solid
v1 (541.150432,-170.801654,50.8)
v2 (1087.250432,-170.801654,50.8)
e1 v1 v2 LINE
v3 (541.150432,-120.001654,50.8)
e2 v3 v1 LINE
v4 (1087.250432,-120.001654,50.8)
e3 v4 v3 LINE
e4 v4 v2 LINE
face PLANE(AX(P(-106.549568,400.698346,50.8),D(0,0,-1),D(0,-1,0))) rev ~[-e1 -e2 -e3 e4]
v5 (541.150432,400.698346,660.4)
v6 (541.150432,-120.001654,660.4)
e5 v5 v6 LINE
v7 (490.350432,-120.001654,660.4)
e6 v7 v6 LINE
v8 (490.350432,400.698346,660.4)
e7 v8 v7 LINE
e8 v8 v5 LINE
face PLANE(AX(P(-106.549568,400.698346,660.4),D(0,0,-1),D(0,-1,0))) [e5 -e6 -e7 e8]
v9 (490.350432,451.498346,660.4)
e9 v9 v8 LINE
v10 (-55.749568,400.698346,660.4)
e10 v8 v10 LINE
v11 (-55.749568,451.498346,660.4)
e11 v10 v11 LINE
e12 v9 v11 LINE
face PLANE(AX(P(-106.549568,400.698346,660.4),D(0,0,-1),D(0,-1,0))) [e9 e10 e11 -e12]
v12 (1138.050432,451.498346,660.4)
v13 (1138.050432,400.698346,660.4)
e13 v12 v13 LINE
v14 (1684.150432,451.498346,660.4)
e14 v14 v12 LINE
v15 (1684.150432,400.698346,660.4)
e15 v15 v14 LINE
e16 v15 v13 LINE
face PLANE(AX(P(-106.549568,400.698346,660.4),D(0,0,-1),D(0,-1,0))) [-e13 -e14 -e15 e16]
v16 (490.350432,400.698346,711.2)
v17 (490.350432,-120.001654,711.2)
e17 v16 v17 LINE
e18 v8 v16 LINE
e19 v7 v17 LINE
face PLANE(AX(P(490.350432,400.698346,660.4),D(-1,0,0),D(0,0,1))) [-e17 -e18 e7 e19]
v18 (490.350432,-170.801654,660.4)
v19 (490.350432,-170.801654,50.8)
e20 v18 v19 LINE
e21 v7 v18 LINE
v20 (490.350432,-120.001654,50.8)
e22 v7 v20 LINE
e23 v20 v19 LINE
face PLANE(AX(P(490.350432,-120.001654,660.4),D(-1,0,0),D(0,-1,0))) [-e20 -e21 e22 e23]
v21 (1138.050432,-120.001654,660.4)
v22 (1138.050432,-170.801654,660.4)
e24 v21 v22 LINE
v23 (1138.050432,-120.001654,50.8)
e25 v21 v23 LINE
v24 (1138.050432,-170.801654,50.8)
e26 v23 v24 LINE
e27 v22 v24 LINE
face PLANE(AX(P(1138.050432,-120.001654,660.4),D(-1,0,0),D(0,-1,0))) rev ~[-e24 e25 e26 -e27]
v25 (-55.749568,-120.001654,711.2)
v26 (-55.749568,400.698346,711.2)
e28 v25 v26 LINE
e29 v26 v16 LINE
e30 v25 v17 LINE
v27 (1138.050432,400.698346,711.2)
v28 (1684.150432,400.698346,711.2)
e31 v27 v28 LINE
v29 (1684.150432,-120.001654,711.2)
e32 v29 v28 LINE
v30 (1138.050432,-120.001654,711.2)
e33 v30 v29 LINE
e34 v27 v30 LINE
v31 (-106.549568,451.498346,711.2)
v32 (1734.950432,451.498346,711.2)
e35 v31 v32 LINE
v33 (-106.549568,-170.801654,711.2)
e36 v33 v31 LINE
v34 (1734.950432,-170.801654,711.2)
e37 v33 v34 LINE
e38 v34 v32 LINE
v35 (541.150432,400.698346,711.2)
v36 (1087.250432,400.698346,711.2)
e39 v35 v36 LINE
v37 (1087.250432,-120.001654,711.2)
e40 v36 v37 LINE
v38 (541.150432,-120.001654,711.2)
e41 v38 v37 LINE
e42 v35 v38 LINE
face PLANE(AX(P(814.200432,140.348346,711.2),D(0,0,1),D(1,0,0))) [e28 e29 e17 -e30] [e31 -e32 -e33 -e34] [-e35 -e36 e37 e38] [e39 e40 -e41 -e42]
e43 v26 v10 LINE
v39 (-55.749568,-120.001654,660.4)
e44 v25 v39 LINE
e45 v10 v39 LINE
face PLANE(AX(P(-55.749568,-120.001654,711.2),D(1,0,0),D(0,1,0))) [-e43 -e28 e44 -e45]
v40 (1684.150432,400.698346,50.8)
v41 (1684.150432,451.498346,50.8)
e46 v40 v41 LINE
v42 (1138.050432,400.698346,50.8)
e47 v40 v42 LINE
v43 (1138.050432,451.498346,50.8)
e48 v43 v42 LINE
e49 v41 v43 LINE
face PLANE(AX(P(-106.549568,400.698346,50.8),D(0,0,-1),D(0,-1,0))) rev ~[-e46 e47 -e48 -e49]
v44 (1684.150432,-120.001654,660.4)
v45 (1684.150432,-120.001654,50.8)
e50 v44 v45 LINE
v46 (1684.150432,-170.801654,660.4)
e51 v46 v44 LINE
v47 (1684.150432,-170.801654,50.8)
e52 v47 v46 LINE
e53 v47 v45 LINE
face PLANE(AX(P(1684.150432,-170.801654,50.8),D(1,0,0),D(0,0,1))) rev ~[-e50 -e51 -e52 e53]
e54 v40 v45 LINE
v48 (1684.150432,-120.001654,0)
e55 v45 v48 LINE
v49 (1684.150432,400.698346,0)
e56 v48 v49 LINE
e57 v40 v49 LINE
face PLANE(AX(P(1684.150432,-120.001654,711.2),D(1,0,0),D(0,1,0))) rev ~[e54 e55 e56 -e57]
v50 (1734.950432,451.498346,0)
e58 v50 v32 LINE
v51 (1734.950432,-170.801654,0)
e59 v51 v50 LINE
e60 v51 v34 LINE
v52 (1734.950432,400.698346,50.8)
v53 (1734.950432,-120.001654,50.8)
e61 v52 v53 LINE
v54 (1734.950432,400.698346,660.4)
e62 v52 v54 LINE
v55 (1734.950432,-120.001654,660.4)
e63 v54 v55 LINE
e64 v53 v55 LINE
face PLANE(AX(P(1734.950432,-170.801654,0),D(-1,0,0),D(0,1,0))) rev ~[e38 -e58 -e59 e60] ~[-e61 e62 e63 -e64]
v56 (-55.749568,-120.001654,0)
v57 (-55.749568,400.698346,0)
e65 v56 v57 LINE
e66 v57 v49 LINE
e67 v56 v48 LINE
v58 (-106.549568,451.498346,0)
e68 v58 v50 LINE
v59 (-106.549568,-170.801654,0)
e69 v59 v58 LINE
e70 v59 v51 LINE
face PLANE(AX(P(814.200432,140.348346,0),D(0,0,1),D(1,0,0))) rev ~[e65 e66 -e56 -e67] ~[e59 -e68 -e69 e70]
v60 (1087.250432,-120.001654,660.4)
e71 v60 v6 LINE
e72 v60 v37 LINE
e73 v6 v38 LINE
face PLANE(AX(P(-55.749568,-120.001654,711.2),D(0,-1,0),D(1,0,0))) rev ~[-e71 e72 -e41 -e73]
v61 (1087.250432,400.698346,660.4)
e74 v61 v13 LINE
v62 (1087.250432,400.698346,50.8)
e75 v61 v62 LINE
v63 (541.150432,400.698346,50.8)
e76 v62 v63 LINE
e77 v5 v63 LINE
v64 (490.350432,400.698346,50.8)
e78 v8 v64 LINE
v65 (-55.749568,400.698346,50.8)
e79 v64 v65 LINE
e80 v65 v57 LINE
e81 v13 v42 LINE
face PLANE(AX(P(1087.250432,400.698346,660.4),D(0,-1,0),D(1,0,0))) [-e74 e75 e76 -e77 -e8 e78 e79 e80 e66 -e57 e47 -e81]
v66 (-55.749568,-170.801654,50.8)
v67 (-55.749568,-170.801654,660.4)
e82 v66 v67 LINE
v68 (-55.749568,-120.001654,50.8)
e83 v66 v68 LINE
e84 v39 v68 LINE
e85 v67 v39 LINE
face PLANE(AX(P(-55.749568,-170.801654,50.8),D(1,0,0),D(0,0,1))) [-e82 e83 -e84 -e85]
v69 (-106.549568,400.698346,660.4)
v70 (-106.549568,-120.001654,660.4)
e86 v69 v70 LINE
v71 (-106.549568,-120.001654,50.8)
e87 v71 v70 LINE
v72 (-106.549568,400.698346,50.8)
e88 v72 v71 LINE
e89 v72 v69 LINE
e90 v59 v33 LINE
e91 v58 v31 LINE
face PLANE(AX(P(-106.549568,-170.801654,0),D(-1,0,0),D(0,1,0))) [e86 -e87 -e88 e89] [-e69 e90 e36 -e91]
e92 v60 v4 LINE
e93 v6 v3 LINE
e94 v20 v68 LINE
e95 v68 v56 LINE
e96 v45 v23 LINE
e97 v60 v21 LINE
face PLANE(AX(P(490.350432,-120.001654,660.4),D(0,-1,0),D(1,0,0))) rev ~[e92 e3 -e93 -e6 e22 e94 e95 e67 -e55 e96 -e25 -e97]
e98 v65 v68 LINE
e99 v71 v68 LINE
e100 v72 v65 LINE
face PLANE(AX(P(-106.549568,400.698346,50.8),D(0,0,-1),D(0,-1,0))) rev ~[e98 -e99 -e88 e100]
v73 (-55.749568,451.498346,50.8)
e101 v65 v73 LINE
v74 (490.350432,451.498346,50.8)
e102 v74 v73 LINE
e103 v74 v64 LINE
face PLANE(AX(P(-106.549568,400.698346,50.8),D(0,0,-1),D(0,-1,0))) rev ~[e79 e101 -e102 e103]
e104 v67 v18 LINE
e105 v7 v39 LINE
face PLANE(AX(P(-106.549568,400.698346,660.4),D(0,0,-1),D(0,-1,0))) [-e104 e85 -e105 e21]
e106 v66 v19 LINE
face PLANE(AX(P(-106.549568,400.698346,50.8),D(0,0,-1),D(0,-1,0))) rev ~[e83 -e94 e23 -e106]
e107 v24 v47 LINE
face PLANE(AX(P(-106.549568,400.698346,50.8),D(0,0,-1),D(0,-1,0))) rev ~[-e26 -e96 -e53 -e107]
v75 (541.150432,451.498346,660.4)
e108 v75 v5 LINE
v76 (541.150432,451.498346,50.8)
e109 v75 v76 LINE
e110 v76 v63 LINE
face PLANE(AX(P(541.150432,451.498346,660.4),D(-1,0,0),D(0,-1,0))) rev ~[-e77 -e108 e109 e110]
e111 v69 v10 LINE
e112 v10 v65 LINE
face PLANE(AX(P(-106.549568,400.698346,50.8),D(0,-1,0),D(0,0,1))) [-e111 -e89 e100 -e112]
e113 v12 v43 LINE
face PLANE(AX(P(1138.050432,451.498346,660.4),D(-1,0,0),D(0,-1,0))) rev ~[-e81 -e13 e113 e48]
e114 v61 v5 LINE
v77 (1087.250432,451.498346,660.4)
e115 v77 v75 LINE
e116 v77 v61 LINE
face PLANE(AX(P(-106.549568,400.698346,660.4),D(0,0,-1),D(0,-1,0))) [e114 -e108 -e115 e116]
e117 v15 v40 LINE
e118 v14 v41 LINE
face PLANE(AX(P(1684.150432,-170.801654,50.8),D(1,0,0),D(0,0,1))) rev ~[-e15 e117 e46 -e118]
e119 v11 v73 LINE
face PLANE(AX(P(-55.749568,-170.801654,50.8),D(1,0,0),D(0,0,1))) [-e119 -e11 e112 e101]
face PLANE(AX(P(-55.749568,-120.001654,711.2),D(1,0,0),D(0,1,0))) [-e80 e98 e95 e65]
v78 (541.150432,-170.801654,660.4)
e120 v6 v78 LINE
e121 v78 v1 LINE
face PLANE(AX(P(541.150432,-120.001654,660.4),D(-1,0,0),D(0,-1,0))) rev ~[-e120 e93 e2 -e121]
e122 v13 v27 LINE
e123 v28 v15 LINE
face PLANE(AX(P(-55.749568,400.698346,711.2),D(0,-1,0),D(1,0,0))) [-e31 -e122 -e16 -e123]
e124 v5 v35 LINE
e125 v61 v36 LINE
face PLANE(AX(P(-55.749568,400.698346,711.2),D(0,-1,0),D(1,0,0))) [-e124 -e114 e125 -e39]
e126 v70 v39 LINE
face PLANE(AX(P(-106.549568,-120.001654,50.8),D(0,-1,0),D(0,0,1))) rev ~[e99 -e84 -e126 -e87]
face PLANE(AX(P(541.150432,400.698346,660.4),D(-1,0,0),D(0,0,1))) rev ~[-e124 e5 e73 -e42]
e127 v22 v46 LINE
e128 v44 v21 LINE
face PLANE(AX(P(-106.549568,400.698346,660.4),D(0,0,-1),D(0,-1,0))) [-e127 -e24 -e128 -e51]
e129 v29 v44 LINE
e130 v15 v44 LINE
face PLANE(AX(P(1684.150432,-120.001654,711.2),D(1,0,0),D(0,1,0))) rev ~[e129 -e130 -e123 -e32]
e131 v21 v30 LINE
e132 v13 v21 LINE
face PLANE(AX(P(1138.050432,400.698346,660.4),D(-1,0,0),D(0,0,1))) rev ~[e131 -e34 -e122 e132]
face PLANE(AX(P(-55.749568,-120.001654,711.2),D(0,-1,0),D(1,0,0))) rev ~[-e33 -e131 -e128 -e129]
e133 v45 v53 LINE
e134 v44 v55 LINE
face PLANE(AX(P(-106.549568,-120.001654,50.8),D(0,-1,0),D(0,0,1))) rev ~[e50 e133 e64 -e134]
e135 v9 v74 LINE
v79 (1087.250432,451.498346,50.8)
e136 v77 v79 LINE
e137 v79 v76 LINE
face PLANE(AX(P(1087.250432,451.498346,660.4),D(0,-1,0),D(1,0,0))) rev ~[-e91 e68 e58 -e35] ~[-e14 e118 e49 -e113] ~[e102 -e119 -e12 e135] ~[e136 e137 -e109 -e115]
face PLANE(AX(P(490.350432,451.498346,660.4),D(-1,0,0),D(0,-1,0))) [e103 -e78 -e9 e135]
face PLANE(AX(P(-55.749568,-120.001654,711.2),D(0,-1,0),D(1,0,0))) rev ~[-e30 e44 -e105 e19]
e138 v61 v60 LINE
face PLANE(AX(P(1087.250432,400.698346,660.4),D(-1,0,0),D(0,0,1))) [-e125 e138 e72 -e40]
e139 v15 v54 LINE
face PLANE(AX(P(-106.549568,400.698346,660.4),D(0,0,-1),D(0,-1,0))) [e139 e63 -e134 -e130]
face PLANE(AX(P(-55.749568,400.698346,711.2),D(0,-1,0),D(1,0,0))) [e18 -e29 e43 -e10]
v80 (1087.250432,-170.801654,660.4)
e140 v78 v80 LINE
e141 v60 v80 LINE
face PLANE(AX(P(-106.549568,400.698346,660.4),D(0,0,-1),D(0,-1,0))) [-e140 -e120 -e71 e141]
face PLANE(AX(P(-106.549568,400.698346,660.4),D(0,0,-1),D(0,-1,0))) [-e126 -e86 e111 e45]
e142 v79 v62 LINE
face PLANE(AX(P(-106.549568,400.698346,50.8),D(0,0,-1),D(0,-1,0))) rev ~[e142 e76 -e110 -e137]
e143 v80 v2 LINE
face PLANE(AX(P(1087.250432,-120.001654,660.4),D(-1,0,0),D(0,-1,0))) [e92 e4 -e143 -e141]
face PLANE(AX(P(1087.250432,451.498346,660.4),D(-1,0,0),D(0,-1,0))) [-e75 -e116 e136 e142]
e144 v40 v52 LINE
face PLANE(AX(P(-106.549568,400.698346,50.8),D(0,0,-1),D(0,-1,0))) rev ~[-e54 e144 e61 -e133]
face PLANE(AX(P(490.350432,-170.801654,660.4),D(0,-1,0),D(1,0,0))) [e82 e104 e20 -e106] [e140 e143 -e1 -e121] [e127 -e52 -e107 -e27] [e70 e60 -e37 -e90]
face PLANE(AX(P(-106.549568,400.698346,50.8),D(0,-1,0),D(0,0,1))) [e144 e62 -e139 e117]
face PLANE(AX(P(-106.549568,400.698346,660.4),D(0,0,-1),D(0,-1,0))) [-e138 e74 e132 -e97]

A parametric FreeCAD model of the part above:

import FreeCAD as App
import Part
import Sketcher
Q = App.Units.Quantity

doc = App.newDocument("Part")
body = doc.addObject("PartDesign::Body", "Body")

# Sketch on XY plane
sketch1 = body.newObject("Sketcher::SketchObject", "Sketch")
sketch1.AttachmentSupport = (doc.getObject("XY_Plane"), [""])
sketch1.MapMode = "FlatFace"
sketch1.addGeometry([
    Part.LineSegment(App.Vector(-107, 451, 0), App.Vector(-107, -171, 0)),
    Part.LineSegment(App.Vector(-107, -171, 0), App.Vector(1735, -171, 0)),
    Part.LineSegment(App.Vector(1735, -171, 0), App.Vector(1735, 451, 0)),
    Part.LineSegment(App.Vector(1735, 451, 0), App.Vector(-107, 451, 0)),
], False)
sketch1.addConstraint([
    Sketcher.Constraint("Coincident", 0, 2, 1, 1),
    Sketcher.Constraint("Coincident", 1, 2, 2, 1),
    Sketcher.Constraint("Coincident", 2, 2, 3, 1),
    Sketcher.Constraint("Coincident", 3, 2, 0, 1),
    Sketcher.Constraint("Vertical", 0),
    Sketcher.Constraint("Horizontal", 1),
    Sketcher.Constraint("Vertical", 2),
    Sketcher.Constraint("Horizontal", 3),
    Sketcher.Constraint("DistanceX", 1, 1, 1, 2, Q("72.5 in")),
    Sketcher.Constraint("DistanceY", 0, 2, 0, 1, Q("24.5 in")),
    Sketcher.Constraint("DistanceX", -1, 1, 1, 2, Q("1734.950432 mm")),
    Sketcher.Constraint("DistanceY", 0, 2, -1, 1, Q("170.801654 mm")),
])
pad1 = body.newObject("PartDesign::Pad", "Pad")
pad1.Profile = sketch1
pad1.Length = Q("28 in")

# Sketch on XZ plane
sketch2 = body.newObject("Sketcher::SketchObject", "Sketch001")
sketch2.AttachmentSupport = (doc.getObject("XZ_Plane"), [""])
sketch2.MapMode = "FlatFace"
sketch2.AttachmentOffset = App.Placement(App.Vector(0, 0, 170.801654), App.Rotation())
sketch2.addGeometry([
    Part.LineSegment(App.Vector(-56, 660, 0), App.Vector(-56, 51, 0)),
    Part.LineSegment(App.Vector(-56, 51, 0), App.Vector(1684, 51, 0)),
    Part.LineSegment(App.Vector(1684, 51, 0), App.Vector(1684, 660, 0)),
    Part.LineSegment(App.Vector(1684, 660, 0), App.Vector(-56, 660, 0)),
], False)
sketch2.addConstraint([
    Sketcher.Constraint("Coincident", 0, 2, 1, 1),
    Sketcher.Constraint("Coincident", 1, 2, 2, 1),
    Sketcher.Constraint("Coincident", 2, 2, 3, 1),
    Sketcher.Constraint("Coincident", 3, 2, 0, 1),
    Sketcher.Constraint("Vertical", 0),
    Sketcher.Constraint("Horizontal", 1),
    Sketcher.Constraint("Vertical", 2),
    Sketcher.Constraint("Horizontal", 3),
    Sketcher.Constraint("DistanceY", 0, 2, 0, 1, Q("24 in")),
    Sketcher.Constraint("DistanceX", 1, 1, 1, 2, Q("68.5 in")),
    Sketcher.Constraint("DistanceY", -1, 1, 0, 2, Q("2 in")),
    Sketcher.Constraint("DistanceX", -1, 1, 1, 2, Q("1684.150432 mm")),
])
pocket1 = body.newObject("PartDesign::Pocket", "Pocket")
pocket1.Profile = sketch2
pocket1.Length = Q("30 in")

# Sketch on YZ plane
sketch3 = body.newObject("Sketcher::SketchObject", "Sketch002")
sketch3.AttachmentSupport = (doc.getObject("YZ_Plane"), [""])
sketch3.MapMode = "FlatFace"
sketch3.AttachmentOffset = App.Placement(App.Vector(0, 0, -106.549568), App.Rotation())
sketch3.addGeometry([
    Part.LineSegment(App.Vector(401, 660, 0), App.Vector(401, 51, 0)),
    Part.LineSegment(App.Vector(401, 51, 0), App.Vector(-120, 51, 0)),
    Part.LineSegment(App.Vector(-120, 51, 0), App.Vector(-120, 660, 0)),
    Part.LineSegment(App.Vector(-120, 660, 0), App.Vector(401, 660, 0)),
], False)
sketch3.addConstraint([
    Sketcher.Constraint("Coincident", 0, 2, 1, 1),
    Sketcher.Constraint("Coincident", 1, 2, 2, 1),
    Sketcher.Constraint("Coincident", 2, 2, 3, 1),
    Sketcher.Constraint("Coincident", 3, 2, 0, 1),
    Sketcher.Constraint("Vertical", 0),
    Sketcher.Constraint("Horizontal", 1),
    Sketcher.Constraint("Vertical", 2),
    Sketcher.Constraint("Horizontal", 3),
    Sketcher.Constraint("DistanceY", 0, 2, 0, 1, Q("24 in")),
    Sketcher.Constraint("DistanceX", 1, 2, 1, 1, Q("20.5 in")),
    Sketcher.Constraint("DistanceY", -1, 1, 0, 2, Q("2 in")),
    Sketcher.Constraint("DistanceX", -1, 1, 0, 2, Q("400.698346 mm")),
])
pocket2 = body.newObject("PartDesign::Pocket", "Pocket001")
pocket2.Profile = sketch3
pocket2.Length = Q("100 in")
pocket2.Reversed = True

# Sketch on XY plane
sketch4 = body.newObject("Sketcher::SketchObject", "Sketch003")
sketch4.AttachmentSupport = (doc.getObject("XY_Plane"), [""])
sketch4.MapMode = "FlatFace"
sketch4.AttachmentOffset = App.Placement(App.Vector(0, 0, 28 * 25.4), App.Rotation())
sketch4.addGeometry([
    Part.LineSegment(App.Vector(-56, 401, 0), App.Vector(-56, -120, 0)),
    Part.LineSegment(App.Vector(-56, -120, 0), App.Vector(1684, -120, 0)),
    Part.LineSegment(App.Vector(1684, -120, 0), App.Vector(1684, 401, 0)),
    Part.LineSegment(App.Vector(1684, 401, 0), App.Vector(-56, 401, 0)),
], False)
sketch4.addConstraint([
    Sketcher.Constraint("Coincident", 0, 2, 1, 1),
    Sketcher.Constraint("Coincident", 1, 2, 2, 1),
    Sketcher.Constraint("Coincident", 2, 2, 3, 1),
    Sketcher.Constraint("Coincident", 3, 2, 0, 1),
    Sketcher.Constraint("Vertical", 0),
    Sketcher.Constraint("Horizontal", 1),
    Sketcher.Constraint("Vertical", 2),
    Sketcher.Constraint("Horizontal", 3),
    Sketcher.Constraint("DistanceX", 1, 1, 1, 2, Q("68.5 in")),
    Sketcher.Constraint("DistanceY", 0, 2, 0, 1, Q("20.5 in")),
    Sketcher.Constraint("DistanceX", -1, 1, 1, 2, Q("1684.150432 mm")),
    Sketcher.Constraint("DistanceY", 0, 2, -1, 1, Q("120.001654 mm")),
])
pocket3 = body.newObject("PartDesign::Pocket", "Pocket002")
pocket3.Profile = sketch4
pocket3.Length = Q("100 in")

# Sketch on XZ plane
sketch5 = body.newObject("Sketcher::SketchObject", "Sketch004")
sketch5.AttachmentSupport = (doc.getObject("XZ_Plane"), [""])
sketch5.MapMode = "FlatFace"
sketch5.AttachmentOffset = App.Placement(App.Vector(0, 0, -400.698346), App.Rotation())
sketch5.addGeometry([
    Part.LineSegment(App.Vector(490, 711, 0), App.Vector(490, 660, 0)),  # 0
    Part.LineSegment(App.Vector(490, 660, 0), App.Vector(541, 660, 0)),  # 1
    Part.LineSegment(App.Vector(541, 660, 0), App.Vector(541, 711, 0)),  # 2
    Part.LineSegment(App.Vector(541, 711, 0), App.Vector(490, 711, 0)),  # 3
    Part.LineSegment(App.Vector(1087, 711, 0), App.Vector(1087, 660, 0)),  # 4
    Part.LineSegment(App.Vector(1087, 660, 0), App.Vector(1138, 660, 0)),  # 5
    Part.LineSegment(App.Vector(1138, 660, 0), App.Vector(1138, 711, 0)),  # 6
    Part.LineSegment(App.Vector(1138, 711, 0), App.Vector(1087, 711, 0)),  # 7
], False)
sketch5.addConstraint([
    Sketcher.Constraint("Coincident", 0, 2, 1, 1),
    Sketcher.Constraint("Coincident", 1, 2, 2, 1),
    Sketcher.Constraint("Coincident", 2, 2, 3, 1),
    Sketcher.Constraint("Coincident", 3, 2, 0, 1),
    Sketcher.Constraint("Coincident", 4, 2, 5, 1),
    Sketcher.Constraint("Coincident", 5, 2, 6, 1),
    Sketcher.Constraint("Coincident", 6, 2, 7, 1),
    Sketcher.Constraint("Coincident", 7, 2, 4, 1),
    Sketcher.Constraint("Vertical", 0),
    Sketcher.Constraint("Horizontal", 1),
    Sketcher.Constraint("Vertical", 2),
    Sketcher.Constraint("Horizontal", 3),
    Sketcher.Constraint("Vertical", 4),
    Sketcher.Constraint("Horizontal", 5),
    Sketcher.Constraint("Vertical", 6),
    Sketcher.Constraint("Horizontal", 7),
    Sketcher.Constraint("Horizontal", 1, 2, 4, 2),
    Sketcher.Constraint("Horizontal", 3, 2, 6, 2),
    Sketcher.Constraint("Equal", 3, 5),
    Sketcher.Constraint("Equal", 7, 0),
    Sketcher.Constraint("DistanceX", 1, 1, 1, 2, Q("2 in")),
    Sketcher.Constraint("DistanceY", -1, 1, 0, 2, Q("26 in")),
    Sketcher.Constraint("DistanceX", 1, 2, 4, 2, Q("21.5 in")),
    Sketcher.Constraint("DistanceX", -1, 1, 0, 2, Q("490.350432 mm")),
])
pad2 = body.newObject("PartDesign::Pad", "Pad001")
pad2.Profile = sketch5
pad2.Length = Q("20.5 in")

# Sketch on XY plane
sketch6 = body.newObject("Sketcher::SketchObject", "Sketch005")
sketch6.AttachmentSupport = (doc.getObject("XY_Plane"), [""])
sketch6.MapMode = "FlatFace"
sketch6.AttachmentOffset = App.Placement(App.Vector(0, 0, 26 * 25.4), App.Rotation())
sketch6.addGeometry([
    Part.LineSegment(App.Vector(1087, 401, 0), App.Vector(1087, 451, 0)),  # 0
    Part.LineSegment(App.Vector(1087, 451, 0), App.Vector(1138, 451, 0)),  # 1
    Part.LineSegment(App.Vector(1138, 451, 0), App.Vector(1138, 401, 0)),  # 2
    Part.LineSegment(App.Vector(1138, 401, 0), App.Vector(1087, 401, 0)),  # 3
    Part.LineSegment(App.Vector(490, 401, 0), App.Vector(490, 451, 0)),  # 4
    Part.LineSegment(App.Vector(490, 451, 0), App.Vector(541, 451, 0)),  # 5
    Part.LineSegment(App.Vector(541, 451, 0), App.Vector(541, 401, 0)),  # 6
    Part.LineSegment(App.Vector(541, 401, 0), App.Vector(490, 401, 0)),  # 7
], False)
sketch6.addConstraint([
    Sketcher.Constraint("Coincident", 0, 2, 1, 1),
    Sketcher.Constraint("Coincident", 1, 2, 2, 1),
    Sketcher.Constraint("Coincident", 2, 2, 3, 1),
    Sketcher.Constraint("Coincident", 3, 2, 0, 1),
    Sketcher.Constraint("Coincident", 4, 2, 5, 1),
    Sketcher.Constraint("Coincident", 5, 2, 6, 1),
    Sketcher.Constraint("Coincident", 6, 2, 7, 1),
    Sketcher.Constraint("Coincident", 7, 2, 4, 1),
    Sketcher.Constraint("Vertical", 0),
    Sketcher.Constraint("Horizontal", 1),
    Sketcher.Constraint("Vertical", 2),
    Sketcher.Constraint("Horizontal", 3),
    Sketcher.Constraint("Vertical", 4),
    Sketcher.Constraint("Horizontal", 5),
    Sketcher.Constraint("Vertical", 6),
    Sketcher.Constraint("Horizontal", 7),
    Sketcher.Constraint("Horizontal", 1, 2, 4, 2),
    Sketcher.Constraint("Horizontal", 3, 2, 6, 2),
    Sketcher.Constraint("Equal", 3, 5),
    Sketcher.Constraint("Equal", 7, 0),
    Sketcher.Constraint("DistanceX", 1, 1, 1, 2, Q("2 in")),
    Sketcher.Constraint("DistanceX", 4, 2, 0, 2, Q("23.5 in")),
    Sketcher.Constraint("DistanceX", -1, 1, 0, 2, Q("1087.250432 mm")),
    Sketcher.Constraint("DistanceY", -1, 1, 0, 2, Q("451.498346 mm")),
])
pad3 = body.newObject("PartDesign::Pad", "Pad002")
pad3.Profile = sketch6
pad3.Length = Q("24 in")
pad3.Reversed = True

# Sketch on XY plane
sketch7 = body.newObject("Sketcher::SketchObject", "Sketch006")
sketch7.AttachmentSupport = (doc.getObject("XY_Plane"), [""])
sketch7.MapMode = "FlatFace"
sketch7.AttachmentOffset = App.Placement(App.Vector(0, 0, 26 * 25.4), App.Rotation())
sketch7.addGeometry([
    Part.LineSegment(App.Vector(490, -171, 0), App.Vector(490, -120, 0)),  # 0
    Part.LineSegment(App.Vector(490, -120, 0), App.Vector(541, -120, 0)),  # 1
    Part.LineSegment(App.Vector(541, -120, 0), App.Vector(541, -171, 0)),  # 2
    Part.LineSegment(App.Vector(541, -171, 0), App.Vector(490, -171, 0)),  # 3
    Part.LineSegment(App.Vector(1087, -171, 0), App.Vector(1087, -120, 0)),  # 4
    Part.LineSegment(App.Vector(1087, -120, 0), App.Vector(1138, -120, 0)),  # 5
    Part.LineSegment(App.Vector(1138, -120, 0), App.Vector(1138, -171, 0)),  # 6
    Part.LineSegment(App.Vector(1138, -171, 0), App.Vector(1087, -171, 0)),  # 7
], False)
sketch7.addConstraint([
    Sketcher.Constraint("Coincident", 0, 2, 1, 1),
    Sketcher.Constraint("Coincident", 1, 2, 2, 1),
    Sketcher.Constraint("Coincident", 2, 2, 3, 1),
    Sketcher.Constraint("Coincident", 3, 2, 0, 1),
    Sketcher.Constraint("Coincident", 4, 2, 5, 1),
    Sketcher.Constraint("Coincident", 5, 2, 6, 1),
    Sketcher.Constraint("Coincident", 6, 2, 7, 1),
    Sketcher.Constraint("Coincident", 7, 2, 4, 1),
    Sketcher.Constraint("Vertical", 0),
    Sketcher.Constraint("Horizontal", 1),
    Sketcher.Constraint("Vertical", 2),
    Sketcher.Constraint("Horizontal", 3),
    Sketcher.Constraint("Vertical", 4),
    Sketcher.Constraint("Horizontal", 5),
    Sketcher.Constraint("Vertical", 6),
    Sketcher.Constraint("Horizontal", 7),
    Sketcher.Constraint("Horizontal", 1, 2, 4, 2),
    Sketcher.Constraint("Horizontal", 3, 2, 6, 2),
    Sketcher.Constraint("Equal", 3, 5),
    Sketcher.Constraint("Equal", 7, 0),
    Sketcher.Constraint("DistanceX", 1, 1, 1, 2, Q("2 in")),
    Sketcher.Constraint("DistanceX", 1, 2, 4, 2, Q("21.5 in")),
    Sketcher.Constraint("DistanceX", -1, 1, 0, 2, Q("490.350432 mm")),
    Sketcher.Constraint("DistanceY", 0, 2, -1, 1, Q("120.001654 mm")),
])
pad4 = body.newObject("PartDesign::Pad", "Pad003")
pad4.Profile = sketch7
pad4.Length = Q("24 in")
pad4.Reversed = True

doc.recompute()
